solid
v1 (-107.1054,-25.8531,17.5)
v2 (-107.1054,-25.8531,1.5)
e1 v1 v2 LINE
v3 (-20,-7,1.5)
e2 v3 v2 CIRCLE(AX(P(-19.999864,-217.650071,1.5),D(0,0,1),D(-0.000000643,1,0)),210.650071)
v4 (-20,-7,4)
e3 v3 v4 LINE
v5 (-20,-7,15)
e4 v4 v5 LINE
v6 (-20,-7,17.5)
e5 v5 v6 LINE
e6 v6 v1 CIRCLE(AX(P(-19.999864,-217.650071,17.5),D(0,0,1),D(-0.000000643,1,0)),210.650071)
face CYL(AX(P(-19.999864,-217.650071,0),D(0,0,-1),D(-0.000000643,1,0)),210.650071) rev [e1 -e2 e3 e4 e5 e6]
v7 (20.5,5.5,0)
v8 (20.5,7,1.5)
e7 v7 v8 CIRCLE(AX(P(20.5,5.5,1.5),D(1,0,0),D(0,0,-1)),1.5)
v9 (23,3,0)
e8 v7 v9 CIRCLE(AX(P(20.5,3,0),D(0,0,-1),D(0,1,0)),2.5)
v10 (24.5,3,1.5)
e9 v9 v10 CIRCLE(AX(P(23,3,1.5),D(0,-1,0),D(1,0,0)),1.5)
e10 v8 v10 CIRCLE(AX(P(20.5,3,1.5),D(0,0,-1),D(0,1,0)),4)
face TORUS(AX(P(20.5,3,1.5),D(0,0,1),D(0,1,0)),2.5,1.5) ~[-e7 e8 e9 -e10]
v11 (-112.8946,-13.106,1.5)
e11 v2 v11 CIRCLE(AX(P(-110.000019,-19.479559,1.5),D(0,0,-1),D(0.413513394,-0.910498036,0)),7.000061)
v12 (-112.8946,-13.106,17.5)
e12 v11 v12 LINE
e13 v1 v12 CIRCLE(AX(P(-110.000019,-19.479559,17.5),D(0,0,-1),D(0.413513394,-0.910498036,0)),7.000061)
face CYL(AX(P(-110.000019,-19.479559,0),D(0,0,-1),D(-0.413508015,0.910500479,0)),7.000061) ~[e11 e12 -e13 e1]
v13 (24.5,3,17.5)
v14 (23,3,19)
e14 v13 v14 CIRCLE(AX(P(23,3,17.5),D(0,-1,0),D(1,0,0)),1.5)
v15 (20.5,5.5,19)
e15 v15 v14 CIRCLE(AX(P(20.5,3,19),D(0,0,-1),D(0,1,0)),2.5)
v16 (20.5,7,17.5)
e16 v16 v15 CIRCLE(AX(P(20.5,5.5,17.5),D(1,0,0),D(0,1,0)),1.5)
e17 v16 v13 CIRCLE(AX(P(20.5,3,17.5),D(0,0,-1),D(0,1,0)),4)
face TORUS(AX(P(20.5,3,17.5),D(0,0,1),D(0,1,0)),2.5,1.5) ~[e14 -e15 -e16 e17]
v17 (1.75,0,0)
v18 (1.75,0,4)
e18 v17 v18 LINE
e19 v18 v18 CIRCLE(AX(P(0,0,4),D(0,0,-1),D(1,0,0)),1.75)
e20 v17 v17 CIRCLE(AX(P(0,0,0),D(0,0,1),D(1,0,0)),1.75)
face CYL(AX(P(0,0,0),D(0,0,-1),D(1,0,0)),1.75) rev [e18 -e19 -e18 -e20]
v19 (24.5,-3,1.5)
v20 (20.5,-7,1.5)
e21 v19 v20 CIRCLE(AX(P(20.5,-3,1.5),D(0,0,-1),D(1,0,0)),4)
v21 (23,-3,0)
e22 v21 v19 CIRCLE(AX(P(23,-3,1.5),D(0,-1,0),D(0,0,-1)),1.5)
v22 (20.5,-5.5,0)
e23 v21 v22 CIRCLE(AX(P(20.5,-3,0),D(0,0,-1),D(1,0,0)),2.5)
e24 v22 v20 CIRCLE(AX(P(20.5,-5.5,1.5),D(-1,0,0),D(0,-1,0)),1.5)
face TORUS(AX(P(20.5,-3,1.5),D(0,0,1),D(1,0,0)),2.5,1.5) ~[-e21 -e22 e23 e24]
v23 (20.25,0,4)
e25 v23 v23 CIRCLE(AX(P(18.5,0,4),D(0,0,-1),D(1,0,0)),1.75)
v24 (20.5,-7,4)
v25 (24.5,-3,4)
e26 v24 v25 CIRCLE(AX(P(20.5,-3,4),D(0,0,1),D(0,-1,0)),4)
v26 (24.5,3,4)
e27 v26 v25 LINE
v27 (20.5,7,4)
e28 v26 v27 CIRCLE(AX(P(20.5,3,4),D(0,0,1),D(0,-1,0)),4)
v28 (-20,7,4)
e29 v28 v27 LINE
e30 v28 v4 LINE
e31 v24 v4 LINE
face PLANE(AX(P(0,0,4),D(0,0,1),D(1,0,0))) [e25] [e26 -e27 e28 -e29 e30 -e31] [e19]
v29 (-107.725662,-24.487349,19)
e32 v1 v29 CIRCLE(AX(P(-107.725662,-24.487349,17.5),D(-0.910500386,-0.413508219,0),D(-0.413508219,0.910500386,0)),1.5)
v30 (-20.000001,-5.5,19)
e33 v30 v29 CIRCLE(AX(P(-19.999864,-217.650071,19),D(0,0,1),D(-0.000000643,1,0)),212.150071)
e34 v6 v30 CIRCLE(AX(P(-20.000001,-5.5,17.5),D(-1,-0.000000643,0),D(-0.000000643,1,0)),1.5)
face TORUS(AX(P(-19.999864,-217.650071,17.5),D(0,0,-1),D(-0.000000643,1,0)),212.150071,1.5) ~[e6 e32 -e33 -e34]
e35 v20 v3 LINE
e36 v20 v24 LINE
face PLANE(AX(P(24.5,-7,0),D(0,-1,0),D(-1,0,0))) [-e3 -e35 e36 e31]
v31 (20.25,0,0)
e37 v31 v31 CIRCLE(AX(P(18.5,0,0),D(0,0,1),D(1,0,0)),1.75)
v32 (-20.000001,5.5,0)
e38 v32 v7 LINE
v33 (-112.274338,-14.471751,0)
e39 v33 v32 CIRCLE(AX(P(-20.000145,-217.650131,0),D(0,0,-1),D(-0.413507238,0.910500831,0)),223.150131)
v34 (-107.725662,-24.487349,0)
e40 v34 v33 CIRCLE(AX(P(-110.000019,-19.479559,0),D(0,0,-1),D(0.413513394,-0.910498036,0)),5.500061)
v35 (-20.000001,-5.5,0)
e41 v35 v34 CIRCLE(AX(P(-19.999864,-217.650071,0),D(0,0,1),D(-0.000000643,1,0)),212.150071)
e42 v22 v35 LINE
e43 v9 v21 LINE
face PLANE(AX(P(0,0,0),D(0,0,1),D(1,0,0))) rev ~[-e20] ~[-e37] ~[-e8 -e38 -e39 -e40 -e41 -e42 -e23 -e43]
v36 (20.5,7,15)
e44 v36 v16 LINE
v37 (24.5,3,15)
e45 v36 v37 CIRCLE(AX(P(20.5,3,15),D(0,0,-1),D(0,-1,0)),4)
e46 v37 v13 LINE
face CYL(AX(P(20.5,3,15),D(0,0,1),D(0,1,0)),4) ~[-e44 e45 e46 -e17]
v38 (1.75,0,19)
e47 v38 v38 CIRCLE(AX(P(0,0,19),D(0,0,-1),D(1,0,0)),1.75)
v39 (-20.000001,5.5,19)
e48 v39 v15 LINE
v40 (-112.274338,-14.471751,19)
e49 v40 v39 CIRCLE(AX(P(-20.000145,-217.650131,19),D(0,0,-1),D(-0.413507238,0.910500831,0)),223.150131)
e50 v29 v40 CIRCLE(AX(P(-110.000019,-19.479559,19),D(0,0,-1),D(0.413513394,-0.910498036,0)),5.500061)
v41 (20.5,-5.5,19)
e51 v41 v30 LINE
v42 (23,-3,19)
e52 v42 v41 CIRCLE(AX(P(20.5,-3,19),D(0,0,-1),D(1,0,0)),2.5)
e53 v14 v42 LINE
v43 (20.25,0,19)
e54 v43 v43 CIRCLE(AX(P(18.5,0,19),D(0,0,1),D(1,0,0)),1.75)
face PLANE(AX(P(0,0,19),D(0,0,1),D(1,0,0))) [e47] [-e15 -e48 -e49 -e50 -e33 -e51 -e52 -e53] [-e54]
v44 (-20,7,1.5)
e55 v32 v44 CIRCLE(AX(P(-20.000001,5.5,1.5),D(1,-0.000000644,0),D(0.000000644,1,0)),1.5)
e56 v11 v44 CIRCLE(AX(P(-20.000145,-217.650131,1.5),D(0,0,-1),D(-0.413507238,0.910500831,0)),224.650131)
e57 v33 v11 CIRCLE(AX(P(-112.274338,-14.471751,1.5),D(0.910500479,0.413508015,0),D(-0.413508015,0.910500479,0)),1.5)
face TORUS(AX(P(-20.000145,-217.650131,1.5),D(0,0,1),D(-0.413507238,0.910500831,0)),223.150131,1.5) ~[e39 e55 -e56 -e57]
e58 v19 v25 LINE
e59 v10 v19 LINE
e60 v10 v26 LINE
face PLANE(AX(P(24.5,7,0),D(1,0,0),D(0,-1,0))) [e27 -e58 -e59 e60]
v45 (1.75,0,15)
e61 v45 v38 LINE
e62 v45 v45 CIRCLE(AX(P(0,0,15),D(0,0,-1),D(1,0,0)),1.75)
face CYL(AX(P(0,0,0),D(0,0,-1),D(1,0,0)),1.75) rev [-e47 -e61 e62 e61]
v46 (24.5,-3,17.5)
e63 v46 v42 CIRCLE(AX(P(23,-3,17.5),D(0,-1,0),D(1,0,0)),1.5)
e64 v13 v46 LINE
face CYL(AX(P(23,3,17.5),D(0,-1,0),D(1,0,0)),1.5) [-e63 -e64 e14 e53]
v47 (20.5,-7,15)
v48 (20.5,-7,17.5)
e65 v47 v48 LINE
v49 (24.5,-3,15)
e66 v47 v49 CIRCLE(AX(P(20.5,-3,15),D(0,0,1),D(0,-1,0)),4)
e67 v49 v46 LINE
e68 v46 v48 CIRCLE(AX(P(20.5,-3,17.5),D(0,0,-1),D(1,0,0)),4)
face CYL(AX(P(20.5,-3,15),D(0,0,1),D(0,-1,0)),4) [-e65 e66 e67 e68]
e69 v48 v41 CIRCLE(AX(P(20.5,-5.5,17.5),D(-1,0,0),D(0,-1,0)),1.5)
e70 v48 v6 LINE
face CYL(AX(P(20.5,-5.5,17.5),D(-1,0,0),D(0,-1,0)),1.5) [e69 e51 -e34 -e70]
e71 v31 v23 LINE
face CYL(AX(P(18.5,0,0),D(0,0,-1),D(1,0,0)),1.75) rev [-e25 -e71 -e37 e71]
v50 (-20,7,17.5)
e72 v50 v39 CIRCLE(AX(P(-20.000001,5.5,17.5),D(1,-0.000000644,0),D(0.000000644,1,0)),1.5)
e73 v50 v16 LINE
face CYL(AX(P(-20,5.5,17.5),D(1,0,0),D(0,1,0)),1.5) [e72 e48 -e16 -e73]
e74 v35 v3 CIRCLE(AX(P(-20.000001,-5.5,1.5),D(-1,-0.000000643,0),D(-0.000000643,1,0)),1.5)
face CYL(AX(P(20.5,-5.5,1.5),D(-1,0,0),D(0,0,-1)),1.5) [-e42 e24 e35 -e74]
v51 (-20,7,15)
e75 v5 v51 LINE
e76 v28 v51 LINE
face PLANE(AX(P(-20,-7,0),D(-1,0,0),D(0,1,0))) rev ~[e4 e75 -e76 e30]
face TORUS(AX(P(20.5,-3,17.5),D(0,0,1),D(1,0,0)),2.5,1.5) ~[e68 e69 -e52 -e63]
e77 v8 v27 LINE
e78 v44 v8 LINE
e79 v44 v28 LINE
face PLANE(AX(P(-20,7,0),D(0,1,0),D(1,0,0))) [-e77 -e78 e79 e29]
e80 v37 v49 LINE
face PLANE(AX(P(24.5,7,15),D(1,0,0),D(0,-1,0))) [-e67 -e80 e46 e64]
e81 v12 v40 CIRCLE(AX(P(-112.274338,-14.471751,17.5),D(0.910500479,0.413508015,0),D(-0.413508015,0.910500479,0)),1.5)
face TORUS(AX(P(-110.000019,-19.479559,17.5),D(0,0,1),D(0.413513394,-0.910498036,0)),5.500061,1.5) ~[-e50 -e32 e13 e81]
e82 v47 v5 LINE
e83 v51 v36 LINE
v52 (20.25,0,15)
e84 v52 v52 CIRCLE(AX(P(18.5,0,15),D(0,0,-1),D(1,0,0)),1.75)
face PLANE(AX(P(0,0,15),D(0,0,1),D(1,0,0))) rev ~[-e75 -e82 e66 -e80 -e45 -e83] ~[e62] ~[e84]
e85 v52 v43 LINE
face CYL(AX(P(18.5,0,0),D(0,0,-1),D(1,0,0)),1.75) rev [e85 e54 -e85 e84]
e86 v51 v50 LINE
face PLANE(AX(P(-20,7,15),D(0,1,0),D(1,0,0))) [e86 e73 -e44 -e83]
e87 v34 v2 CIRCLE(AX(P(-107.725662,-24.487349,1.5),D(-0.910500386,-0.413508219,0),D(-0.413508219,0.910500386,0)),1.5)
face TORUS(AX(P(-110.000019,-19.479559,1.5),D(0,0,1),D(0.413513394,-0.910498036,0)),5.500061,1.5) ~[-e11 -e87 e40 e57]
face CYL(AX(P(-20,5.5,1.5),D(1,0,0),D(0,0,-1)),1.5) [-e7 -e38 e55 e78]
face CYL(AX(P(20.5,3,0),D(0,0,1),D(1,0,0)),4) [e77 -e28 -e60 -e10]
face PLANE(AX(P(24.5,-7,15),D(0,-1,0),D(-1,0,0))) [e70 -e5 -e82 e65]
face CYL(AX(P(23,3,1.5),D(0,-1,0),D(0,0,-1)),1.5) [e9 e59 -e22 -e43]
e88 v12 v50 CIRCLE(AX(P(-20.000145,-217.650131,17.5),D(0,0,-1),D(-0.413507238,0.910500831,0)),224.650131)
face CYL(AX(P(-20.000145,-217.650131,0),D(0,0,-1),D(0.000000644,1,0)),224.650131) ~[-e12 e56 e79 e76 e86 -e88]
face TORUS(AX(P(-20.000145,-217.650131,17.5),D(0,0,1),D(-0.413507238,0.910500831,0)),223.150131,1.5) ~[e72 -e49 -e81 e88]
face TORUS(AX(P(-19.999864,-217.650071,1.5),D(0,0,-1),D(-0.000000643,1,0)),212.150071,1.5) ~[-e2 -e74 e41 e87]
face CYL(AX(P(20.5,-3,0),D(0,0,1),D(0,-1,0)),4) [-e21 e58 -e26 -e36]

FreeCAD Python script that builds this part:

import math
import FreeCAD as App
import Part
import Sketcher

V = App.Vector
Q = App.Units.Quantity


def edges_at(feature, points):
    """Names of the edges that pass closest to the given points."""
    edges = feature.Shape.Edges
    near = lambda p: min(range(len(edges)), key=lambda i: edges[i].distToShape(Part.Vertex(*p))[0])
    return sorted({f"Edge{near(p) + 1}" for p in points})

doc = App.newDocument("Part")
body = doc.addObject("PartDesign::Body", "Body")

# Sketch on XY plane
sketch1 = body.newObject("Sketcher::SketchObject", "Sketch")
sketch1.AttachmentSupport = (doc.getObject("XY_Plane"), [""])
sketch1.MapMode = "FlatFace"
sketch1.addGeometry([
    Part.LineSegment(V(24.5, 7, 0), V(-20, 7, 0)),  # 0
    Part.ArcOfCircle(Part.Circle(V(-19.999852, -217.651483, 0), V(0, 0, 1), 224.651483), math.radians(90.000038), math.radians(114.425271)),  # 1
    Part.ArcOfCircle(Part.Circle(V(-110, -19.4796, 0), V(0, 0, 1), 7.000106), math.radians(114.425394), math.radians(294.425733)),  # 2
    Part.ArcOfCircle(Part.Circle(V(-20.000139, -217.648804, 0), V(0, 0, 1), 210.648804), math.radians(89.999962), math.radians(114.425482)),  # 3
    Part.LineSegment(V(-20, -7, 0), V(24.5, -7, 0)),  # 4
    Part.LineSegment(V(24.5, -7, 0), V(24.5, 7, 0)),  # 5
], False)
sketch1.addConstraint([
    Sketcher.Constraint("Coincident", 0, 2, 1, 1),
    Sketcher.Constraint("Coincident", 1, 2, 2, 1),
    Sketcher.Constraint("Coincident", 2, 2, 3, 2),
    Sketcher.Constraint("Coincident", 3, 1, 4, 1),
    Sketcher.Constraint("Coincident", 4, 2, 5, 1),
    Sketcher.Constraint("Coincident", 5, 2, 0, 1),
    Sketcher.Constraint("Horizontal", 0),
    Sketcher.Constraint("Horizontal", 4),
    Sketcher.Constraint("Vertical", 5),
    Sketcher.Constraint("Radius", 2, Q("7 mm")),
    Sketcher.Constraint("DistanceX", 0, 2, -1, 1, Q("20 mm")),
    Sketcher.Constraint("DistanceY", -1, 1, 0, 2, Q("7 mm")),
    Sketcher.Constraint("DistanceX", 3, 1, -1, 1, Q("20 mm")),
    Sketcher.Constraint("DistanceY", 3, 1, -1, 1, Q("7 mm")),
    Sketcher.Constraint("DistanceX", 0, 2, 0, 1, Q("44.5 mm")),
    Sketcher.Constraint("DistanceX", 2, 3, -1, 1, Q("110 mm")),
    Sketcher.Constraint("DistanceX", 1, 3, -1, 1, Q("19.9999 mm")),
    Sketcher.Constraint("DistanceX", 3, 3, -1, 1, Q("20.0001 mm")),
    Sketcher.Constraint("Radius", 1, Q("224.6515 mm")),
    Sketcher.Constraint("DistanceY", 1, 2, -1, 1, Q("13.106 mm")),
    Sketcher.Constraint("DistanceX", 2, 2, -1, 1, Q("107.1054 mm")),
])
pad1 = body.newObject("PartDesign::Pad", "Pad")
pad1.Profile = sketch1
pad1.Length = 4

# Sketch on XY plane
sketch2 = body.newObject("Sketcher::SketchObject", "Sketch001")
sketch2.AttachmentSupport = (doc.getObject("XY_Plane"), [""])
sketch2.MapMode = "FlatFace"
sketch2.addGeometry([
    Part.LineSegment(V(-20, -7, 0), V(-20, 7, 0)),
    Part.ArcOfCircle(Part.Circle(V(-19.999852, -217.651483, 0), V(0, 0, 1), 224.651483), math.radians(90.000038), math.radians(114.425271)),
    Part.ArcOfCircle(Part.Circle(V(-110, -19.4796, 0), V(0, 0, 1), 7.000106), math.radians(114.425394), math.radians(294.425733)),
    Part.ArcOfCircle(Part.Circle(V(-20.000139, -217.648804, 0), V(0, 0, 1), 210.648804), math.radians(89.999962), math.radians(114.425482)),
], False)
sketch2.addConstraint([
    Sketcher.Constraint("Coincident", 0, 2, 1, 1),
    Sketcher.Constraint("Coincident", 1, 2, 2, 1),
    Sketcher.Constraint("Coincident", 2, 2, 3, 2),
    Sketcher.Constraint("Coincident", 3, 1, 0, 1),
    Sketcher.Constraint("Vertical", 0),
    Sketcher.Constraint("Radius", 2, Q("7 mm")),
    Sketcher.Constraint("DistanceX", 0, 2, -1, 1, Q("20 mm")),
    Sketcher.Constraint("DistanceY", -1, 1, 0, 2, Q("7 mm")),
    Sketcher.Constraint("DistanceY", 3, 1, -1, 1, Q("7 mm")),
    Sketcher.Constraint("DistanceX", 2, 3, -1, 1, Q("110 mm")),
    Sketcher.Constraint("DistanceX", 1, 3, -1, 1, Q("19.9999 mm")),
    Sketcher.Constraint("DistanceX", 3, 3, -1, 1, Q("20.0001 mm")),
    Sketcher.Constraint("Radius", 1, Q("224.6515 mm")),
    Sketcher.Constraint("DistanceY", 1, 2, -1, 1, Q("13.106 mm")),
    Sketcher.Constraint("DistanceX", 2, 2, -1, 1, Q("107.1054 mm")),
])
pad2 = body.newObject("PartDesign::Pad", "Pad001")
pad2.Profile = sketch2
pad2.Length = 19

# Sketch on XY plane
sketch3 = body.newObject("Sketcher::SketchObject", "Sketch002")
sketch3.AttachmentSupport = (doc.getObject("XY_Plane"), [""])
sketch3.MapMode = "FlatFace"
sketch3.AttachmentOffset = App.Placement(V(0, 0, 15), App.Rotation())
sketch3.addGeometry([
    Part.LineSegment(V(24.5, 7, 0), V(-20, 7, 0)),  # 0
    Part.ArcOfCircle(Part.Circle(V(-19.999852, -217.651483, 0), V(0, 0, 1), 224.651483), math.radians(90.000038), math.radians(114.425271)),  # 1
    Part.ArcOfCircle(Part.Circle(V(-110, -19.4796, 0), V(0, 0, 1), 7.000106), math.radians(114.425394), math.radians(294.425733)),  # 2
    Part.ArcOfCircle(Part.Circle(V(-20.000139, -217.648804, 0), V(0, 0, 1), 210.648804), math.radians(89.999962), math.radians(114.425482)),  # 3
    Part.LineSegment(V(-20, -7, 0), V(24.5, -7, 0)),  # 4
    Part.LineSegment(V(24.5, -7, 0), V(24.5, 7, 0)),  # 5
], False)
sketch3.addConstraint([
    Sketcher.Constraint("Coincident", 0, 2, 1, 1),
    Sketcher.Constraint("Coincident", 1, 2, 2, 1),
    Sketcher.Constraint("Coincident", 2, 2, 3, 2),
    Sketcher.Constraint("Coincident", 3, 1, 4, 1),
    Sketcher.Constraint("Coincident", 4, 2, 5, 1),
    Sketcher.Constraint("Coincident", 5, 2, 0, 1),
    Sketcher.Constraint("Horizontal", 0),
    Sketcher.Constraint("Horizontal", 4),
    Sketcher.Constraint("Vertical", 5),
    Sketcher.Constraint("Radius", 2, Q("7 mm")),
    Sketcher.Constraint("DistanceX", 0, 2, -1, 1, Q("20 mm")),
    Sketcher.Constraint("DistanceY", -1, 1, 0, 2, Q("7 mm")),
    Sketcher.Constraint("DistanceX", 3, 1, -1, 1, Q("20 mm")),
    Sketcher.Constraint("DistanceY", 3, 1, -1, 1, Q("7 mm")),
    Sketcher.Constraint("DistanceX", 0, 2, 0, 1, Q("44.5 mm")),
    Sketcher.Constraint("DistanceX", 2, 3, -1, 1, Q("110 mm")),
    Sketcher.Constraint("DistanceX", 1, 3, -1, 1, Q("19.9999 mm")),
    Sketcher.Constraint("DistanceX", 3, 3, -1, 1, Q("20.0001 mm")),
    Sketcher.Constraint("Radius", 1, Q("224.6515 mm")),
    Sketcher.Constraint("DistanceY", 1, 2, -1, 1, Q("13.106 mm")),
    Sketcher.Constraint("DistanceX", 2, 2, -1, 1, Q("107.1054 mm")),
])
pad3 = body.newObject("PartDesign::Pad", "Pad002")
pad3.Profile = sketch3
pad3.Length = 4

# Sketch on XY plane
sketch4 = body.newObject("Sketcher::SketchObject", "Sketch003")
sketch4.AttachmentSupport = (doc.getObject("XY_Plane"), [""])
sketch4.MapMode = "FlatFace"
sketch4.addGeometry(Part.Circle(V(0, 0, 0), V(0, 0, 1), 1.75), False)
sketch4.addConstraint([
    Sketcher.Constraint("Coincident", 0, 3, -1, 1),
    Sketcher.Constraint("Diameter", 0, Q("3.5 mm")),
])
pocket1 = body.newObject("PartDesign::Pocket", "Pocket")
pocket1.Profile = sketch4
pocket1.Length = 35
pocket1.Reversed = True

# Sketch on XY plane
sketch5 = body.newObject("Sketcher::SketchObject", "Sketch004")
sketch5.AttachmentSupport = (doc.getObject("XY_Plane"), [""])
sketch5.MapMode = "FlatFace"
sketch5.addGeometry(Part.Circle(V(18.5, 0, 0), V(0, 0, 1), 1.75), False)
sketch5.addConstraint([
    Sketcher.Constraint("PointOnObject", 0, 3, -1),
    Sketcher.Constraint("Diameter", 0, Q("3.5 mm")),
    Sketcher.Constraint("DistanceX", -1, 1, 0, 3, Q("18.5 mm")),
])
pocket2 = body.newObject("PartDesign::Pocket", "Pocket001")
pocket2.Profile = sketch5
pocket2.Length = 19
pocket2.Reversed = True
doc.recompute()

fillet = body.newObject("PartDesign::Fillet", "Fillet")
fillet.Base = (pocket2, edges_at(pocket2, [
    (24.5, -7, 17),
    (24.5, -7, 2),
    (24.5, 7, 17),
    (24.5, 7, 2),
]))
fillet.Radius = 4
doc.recompute()

fillet2 = body.newObject("PartDesign::Fillet", "Fillet001")
fillet2.Base = (fillet, edges_at(fillet, [
    (-64.561, -11.767, 19),
    (0.25, -7, 19),
    (23.328, -5.828, 19),
    (24.5, 0, 19),
    (23.328, 5.828, 19),
    (0.25, 7, 19),
    (-67.523, 1.916, 19),
    (-116.374, -22.374, 19),
    (-64.561, -11.767, 0),
    (0.25, -7, 0),
    (23.328, -5.828, 0),
    (24.5, 0, 0),
    (23.328, 5.828, 0),
    (0.25, 7, 0),
    (-67.523, 1.916, 0),
    (-116.374, -22.374, 0),
]))
fillet2.Radius = 1.5

doc.recompute()
